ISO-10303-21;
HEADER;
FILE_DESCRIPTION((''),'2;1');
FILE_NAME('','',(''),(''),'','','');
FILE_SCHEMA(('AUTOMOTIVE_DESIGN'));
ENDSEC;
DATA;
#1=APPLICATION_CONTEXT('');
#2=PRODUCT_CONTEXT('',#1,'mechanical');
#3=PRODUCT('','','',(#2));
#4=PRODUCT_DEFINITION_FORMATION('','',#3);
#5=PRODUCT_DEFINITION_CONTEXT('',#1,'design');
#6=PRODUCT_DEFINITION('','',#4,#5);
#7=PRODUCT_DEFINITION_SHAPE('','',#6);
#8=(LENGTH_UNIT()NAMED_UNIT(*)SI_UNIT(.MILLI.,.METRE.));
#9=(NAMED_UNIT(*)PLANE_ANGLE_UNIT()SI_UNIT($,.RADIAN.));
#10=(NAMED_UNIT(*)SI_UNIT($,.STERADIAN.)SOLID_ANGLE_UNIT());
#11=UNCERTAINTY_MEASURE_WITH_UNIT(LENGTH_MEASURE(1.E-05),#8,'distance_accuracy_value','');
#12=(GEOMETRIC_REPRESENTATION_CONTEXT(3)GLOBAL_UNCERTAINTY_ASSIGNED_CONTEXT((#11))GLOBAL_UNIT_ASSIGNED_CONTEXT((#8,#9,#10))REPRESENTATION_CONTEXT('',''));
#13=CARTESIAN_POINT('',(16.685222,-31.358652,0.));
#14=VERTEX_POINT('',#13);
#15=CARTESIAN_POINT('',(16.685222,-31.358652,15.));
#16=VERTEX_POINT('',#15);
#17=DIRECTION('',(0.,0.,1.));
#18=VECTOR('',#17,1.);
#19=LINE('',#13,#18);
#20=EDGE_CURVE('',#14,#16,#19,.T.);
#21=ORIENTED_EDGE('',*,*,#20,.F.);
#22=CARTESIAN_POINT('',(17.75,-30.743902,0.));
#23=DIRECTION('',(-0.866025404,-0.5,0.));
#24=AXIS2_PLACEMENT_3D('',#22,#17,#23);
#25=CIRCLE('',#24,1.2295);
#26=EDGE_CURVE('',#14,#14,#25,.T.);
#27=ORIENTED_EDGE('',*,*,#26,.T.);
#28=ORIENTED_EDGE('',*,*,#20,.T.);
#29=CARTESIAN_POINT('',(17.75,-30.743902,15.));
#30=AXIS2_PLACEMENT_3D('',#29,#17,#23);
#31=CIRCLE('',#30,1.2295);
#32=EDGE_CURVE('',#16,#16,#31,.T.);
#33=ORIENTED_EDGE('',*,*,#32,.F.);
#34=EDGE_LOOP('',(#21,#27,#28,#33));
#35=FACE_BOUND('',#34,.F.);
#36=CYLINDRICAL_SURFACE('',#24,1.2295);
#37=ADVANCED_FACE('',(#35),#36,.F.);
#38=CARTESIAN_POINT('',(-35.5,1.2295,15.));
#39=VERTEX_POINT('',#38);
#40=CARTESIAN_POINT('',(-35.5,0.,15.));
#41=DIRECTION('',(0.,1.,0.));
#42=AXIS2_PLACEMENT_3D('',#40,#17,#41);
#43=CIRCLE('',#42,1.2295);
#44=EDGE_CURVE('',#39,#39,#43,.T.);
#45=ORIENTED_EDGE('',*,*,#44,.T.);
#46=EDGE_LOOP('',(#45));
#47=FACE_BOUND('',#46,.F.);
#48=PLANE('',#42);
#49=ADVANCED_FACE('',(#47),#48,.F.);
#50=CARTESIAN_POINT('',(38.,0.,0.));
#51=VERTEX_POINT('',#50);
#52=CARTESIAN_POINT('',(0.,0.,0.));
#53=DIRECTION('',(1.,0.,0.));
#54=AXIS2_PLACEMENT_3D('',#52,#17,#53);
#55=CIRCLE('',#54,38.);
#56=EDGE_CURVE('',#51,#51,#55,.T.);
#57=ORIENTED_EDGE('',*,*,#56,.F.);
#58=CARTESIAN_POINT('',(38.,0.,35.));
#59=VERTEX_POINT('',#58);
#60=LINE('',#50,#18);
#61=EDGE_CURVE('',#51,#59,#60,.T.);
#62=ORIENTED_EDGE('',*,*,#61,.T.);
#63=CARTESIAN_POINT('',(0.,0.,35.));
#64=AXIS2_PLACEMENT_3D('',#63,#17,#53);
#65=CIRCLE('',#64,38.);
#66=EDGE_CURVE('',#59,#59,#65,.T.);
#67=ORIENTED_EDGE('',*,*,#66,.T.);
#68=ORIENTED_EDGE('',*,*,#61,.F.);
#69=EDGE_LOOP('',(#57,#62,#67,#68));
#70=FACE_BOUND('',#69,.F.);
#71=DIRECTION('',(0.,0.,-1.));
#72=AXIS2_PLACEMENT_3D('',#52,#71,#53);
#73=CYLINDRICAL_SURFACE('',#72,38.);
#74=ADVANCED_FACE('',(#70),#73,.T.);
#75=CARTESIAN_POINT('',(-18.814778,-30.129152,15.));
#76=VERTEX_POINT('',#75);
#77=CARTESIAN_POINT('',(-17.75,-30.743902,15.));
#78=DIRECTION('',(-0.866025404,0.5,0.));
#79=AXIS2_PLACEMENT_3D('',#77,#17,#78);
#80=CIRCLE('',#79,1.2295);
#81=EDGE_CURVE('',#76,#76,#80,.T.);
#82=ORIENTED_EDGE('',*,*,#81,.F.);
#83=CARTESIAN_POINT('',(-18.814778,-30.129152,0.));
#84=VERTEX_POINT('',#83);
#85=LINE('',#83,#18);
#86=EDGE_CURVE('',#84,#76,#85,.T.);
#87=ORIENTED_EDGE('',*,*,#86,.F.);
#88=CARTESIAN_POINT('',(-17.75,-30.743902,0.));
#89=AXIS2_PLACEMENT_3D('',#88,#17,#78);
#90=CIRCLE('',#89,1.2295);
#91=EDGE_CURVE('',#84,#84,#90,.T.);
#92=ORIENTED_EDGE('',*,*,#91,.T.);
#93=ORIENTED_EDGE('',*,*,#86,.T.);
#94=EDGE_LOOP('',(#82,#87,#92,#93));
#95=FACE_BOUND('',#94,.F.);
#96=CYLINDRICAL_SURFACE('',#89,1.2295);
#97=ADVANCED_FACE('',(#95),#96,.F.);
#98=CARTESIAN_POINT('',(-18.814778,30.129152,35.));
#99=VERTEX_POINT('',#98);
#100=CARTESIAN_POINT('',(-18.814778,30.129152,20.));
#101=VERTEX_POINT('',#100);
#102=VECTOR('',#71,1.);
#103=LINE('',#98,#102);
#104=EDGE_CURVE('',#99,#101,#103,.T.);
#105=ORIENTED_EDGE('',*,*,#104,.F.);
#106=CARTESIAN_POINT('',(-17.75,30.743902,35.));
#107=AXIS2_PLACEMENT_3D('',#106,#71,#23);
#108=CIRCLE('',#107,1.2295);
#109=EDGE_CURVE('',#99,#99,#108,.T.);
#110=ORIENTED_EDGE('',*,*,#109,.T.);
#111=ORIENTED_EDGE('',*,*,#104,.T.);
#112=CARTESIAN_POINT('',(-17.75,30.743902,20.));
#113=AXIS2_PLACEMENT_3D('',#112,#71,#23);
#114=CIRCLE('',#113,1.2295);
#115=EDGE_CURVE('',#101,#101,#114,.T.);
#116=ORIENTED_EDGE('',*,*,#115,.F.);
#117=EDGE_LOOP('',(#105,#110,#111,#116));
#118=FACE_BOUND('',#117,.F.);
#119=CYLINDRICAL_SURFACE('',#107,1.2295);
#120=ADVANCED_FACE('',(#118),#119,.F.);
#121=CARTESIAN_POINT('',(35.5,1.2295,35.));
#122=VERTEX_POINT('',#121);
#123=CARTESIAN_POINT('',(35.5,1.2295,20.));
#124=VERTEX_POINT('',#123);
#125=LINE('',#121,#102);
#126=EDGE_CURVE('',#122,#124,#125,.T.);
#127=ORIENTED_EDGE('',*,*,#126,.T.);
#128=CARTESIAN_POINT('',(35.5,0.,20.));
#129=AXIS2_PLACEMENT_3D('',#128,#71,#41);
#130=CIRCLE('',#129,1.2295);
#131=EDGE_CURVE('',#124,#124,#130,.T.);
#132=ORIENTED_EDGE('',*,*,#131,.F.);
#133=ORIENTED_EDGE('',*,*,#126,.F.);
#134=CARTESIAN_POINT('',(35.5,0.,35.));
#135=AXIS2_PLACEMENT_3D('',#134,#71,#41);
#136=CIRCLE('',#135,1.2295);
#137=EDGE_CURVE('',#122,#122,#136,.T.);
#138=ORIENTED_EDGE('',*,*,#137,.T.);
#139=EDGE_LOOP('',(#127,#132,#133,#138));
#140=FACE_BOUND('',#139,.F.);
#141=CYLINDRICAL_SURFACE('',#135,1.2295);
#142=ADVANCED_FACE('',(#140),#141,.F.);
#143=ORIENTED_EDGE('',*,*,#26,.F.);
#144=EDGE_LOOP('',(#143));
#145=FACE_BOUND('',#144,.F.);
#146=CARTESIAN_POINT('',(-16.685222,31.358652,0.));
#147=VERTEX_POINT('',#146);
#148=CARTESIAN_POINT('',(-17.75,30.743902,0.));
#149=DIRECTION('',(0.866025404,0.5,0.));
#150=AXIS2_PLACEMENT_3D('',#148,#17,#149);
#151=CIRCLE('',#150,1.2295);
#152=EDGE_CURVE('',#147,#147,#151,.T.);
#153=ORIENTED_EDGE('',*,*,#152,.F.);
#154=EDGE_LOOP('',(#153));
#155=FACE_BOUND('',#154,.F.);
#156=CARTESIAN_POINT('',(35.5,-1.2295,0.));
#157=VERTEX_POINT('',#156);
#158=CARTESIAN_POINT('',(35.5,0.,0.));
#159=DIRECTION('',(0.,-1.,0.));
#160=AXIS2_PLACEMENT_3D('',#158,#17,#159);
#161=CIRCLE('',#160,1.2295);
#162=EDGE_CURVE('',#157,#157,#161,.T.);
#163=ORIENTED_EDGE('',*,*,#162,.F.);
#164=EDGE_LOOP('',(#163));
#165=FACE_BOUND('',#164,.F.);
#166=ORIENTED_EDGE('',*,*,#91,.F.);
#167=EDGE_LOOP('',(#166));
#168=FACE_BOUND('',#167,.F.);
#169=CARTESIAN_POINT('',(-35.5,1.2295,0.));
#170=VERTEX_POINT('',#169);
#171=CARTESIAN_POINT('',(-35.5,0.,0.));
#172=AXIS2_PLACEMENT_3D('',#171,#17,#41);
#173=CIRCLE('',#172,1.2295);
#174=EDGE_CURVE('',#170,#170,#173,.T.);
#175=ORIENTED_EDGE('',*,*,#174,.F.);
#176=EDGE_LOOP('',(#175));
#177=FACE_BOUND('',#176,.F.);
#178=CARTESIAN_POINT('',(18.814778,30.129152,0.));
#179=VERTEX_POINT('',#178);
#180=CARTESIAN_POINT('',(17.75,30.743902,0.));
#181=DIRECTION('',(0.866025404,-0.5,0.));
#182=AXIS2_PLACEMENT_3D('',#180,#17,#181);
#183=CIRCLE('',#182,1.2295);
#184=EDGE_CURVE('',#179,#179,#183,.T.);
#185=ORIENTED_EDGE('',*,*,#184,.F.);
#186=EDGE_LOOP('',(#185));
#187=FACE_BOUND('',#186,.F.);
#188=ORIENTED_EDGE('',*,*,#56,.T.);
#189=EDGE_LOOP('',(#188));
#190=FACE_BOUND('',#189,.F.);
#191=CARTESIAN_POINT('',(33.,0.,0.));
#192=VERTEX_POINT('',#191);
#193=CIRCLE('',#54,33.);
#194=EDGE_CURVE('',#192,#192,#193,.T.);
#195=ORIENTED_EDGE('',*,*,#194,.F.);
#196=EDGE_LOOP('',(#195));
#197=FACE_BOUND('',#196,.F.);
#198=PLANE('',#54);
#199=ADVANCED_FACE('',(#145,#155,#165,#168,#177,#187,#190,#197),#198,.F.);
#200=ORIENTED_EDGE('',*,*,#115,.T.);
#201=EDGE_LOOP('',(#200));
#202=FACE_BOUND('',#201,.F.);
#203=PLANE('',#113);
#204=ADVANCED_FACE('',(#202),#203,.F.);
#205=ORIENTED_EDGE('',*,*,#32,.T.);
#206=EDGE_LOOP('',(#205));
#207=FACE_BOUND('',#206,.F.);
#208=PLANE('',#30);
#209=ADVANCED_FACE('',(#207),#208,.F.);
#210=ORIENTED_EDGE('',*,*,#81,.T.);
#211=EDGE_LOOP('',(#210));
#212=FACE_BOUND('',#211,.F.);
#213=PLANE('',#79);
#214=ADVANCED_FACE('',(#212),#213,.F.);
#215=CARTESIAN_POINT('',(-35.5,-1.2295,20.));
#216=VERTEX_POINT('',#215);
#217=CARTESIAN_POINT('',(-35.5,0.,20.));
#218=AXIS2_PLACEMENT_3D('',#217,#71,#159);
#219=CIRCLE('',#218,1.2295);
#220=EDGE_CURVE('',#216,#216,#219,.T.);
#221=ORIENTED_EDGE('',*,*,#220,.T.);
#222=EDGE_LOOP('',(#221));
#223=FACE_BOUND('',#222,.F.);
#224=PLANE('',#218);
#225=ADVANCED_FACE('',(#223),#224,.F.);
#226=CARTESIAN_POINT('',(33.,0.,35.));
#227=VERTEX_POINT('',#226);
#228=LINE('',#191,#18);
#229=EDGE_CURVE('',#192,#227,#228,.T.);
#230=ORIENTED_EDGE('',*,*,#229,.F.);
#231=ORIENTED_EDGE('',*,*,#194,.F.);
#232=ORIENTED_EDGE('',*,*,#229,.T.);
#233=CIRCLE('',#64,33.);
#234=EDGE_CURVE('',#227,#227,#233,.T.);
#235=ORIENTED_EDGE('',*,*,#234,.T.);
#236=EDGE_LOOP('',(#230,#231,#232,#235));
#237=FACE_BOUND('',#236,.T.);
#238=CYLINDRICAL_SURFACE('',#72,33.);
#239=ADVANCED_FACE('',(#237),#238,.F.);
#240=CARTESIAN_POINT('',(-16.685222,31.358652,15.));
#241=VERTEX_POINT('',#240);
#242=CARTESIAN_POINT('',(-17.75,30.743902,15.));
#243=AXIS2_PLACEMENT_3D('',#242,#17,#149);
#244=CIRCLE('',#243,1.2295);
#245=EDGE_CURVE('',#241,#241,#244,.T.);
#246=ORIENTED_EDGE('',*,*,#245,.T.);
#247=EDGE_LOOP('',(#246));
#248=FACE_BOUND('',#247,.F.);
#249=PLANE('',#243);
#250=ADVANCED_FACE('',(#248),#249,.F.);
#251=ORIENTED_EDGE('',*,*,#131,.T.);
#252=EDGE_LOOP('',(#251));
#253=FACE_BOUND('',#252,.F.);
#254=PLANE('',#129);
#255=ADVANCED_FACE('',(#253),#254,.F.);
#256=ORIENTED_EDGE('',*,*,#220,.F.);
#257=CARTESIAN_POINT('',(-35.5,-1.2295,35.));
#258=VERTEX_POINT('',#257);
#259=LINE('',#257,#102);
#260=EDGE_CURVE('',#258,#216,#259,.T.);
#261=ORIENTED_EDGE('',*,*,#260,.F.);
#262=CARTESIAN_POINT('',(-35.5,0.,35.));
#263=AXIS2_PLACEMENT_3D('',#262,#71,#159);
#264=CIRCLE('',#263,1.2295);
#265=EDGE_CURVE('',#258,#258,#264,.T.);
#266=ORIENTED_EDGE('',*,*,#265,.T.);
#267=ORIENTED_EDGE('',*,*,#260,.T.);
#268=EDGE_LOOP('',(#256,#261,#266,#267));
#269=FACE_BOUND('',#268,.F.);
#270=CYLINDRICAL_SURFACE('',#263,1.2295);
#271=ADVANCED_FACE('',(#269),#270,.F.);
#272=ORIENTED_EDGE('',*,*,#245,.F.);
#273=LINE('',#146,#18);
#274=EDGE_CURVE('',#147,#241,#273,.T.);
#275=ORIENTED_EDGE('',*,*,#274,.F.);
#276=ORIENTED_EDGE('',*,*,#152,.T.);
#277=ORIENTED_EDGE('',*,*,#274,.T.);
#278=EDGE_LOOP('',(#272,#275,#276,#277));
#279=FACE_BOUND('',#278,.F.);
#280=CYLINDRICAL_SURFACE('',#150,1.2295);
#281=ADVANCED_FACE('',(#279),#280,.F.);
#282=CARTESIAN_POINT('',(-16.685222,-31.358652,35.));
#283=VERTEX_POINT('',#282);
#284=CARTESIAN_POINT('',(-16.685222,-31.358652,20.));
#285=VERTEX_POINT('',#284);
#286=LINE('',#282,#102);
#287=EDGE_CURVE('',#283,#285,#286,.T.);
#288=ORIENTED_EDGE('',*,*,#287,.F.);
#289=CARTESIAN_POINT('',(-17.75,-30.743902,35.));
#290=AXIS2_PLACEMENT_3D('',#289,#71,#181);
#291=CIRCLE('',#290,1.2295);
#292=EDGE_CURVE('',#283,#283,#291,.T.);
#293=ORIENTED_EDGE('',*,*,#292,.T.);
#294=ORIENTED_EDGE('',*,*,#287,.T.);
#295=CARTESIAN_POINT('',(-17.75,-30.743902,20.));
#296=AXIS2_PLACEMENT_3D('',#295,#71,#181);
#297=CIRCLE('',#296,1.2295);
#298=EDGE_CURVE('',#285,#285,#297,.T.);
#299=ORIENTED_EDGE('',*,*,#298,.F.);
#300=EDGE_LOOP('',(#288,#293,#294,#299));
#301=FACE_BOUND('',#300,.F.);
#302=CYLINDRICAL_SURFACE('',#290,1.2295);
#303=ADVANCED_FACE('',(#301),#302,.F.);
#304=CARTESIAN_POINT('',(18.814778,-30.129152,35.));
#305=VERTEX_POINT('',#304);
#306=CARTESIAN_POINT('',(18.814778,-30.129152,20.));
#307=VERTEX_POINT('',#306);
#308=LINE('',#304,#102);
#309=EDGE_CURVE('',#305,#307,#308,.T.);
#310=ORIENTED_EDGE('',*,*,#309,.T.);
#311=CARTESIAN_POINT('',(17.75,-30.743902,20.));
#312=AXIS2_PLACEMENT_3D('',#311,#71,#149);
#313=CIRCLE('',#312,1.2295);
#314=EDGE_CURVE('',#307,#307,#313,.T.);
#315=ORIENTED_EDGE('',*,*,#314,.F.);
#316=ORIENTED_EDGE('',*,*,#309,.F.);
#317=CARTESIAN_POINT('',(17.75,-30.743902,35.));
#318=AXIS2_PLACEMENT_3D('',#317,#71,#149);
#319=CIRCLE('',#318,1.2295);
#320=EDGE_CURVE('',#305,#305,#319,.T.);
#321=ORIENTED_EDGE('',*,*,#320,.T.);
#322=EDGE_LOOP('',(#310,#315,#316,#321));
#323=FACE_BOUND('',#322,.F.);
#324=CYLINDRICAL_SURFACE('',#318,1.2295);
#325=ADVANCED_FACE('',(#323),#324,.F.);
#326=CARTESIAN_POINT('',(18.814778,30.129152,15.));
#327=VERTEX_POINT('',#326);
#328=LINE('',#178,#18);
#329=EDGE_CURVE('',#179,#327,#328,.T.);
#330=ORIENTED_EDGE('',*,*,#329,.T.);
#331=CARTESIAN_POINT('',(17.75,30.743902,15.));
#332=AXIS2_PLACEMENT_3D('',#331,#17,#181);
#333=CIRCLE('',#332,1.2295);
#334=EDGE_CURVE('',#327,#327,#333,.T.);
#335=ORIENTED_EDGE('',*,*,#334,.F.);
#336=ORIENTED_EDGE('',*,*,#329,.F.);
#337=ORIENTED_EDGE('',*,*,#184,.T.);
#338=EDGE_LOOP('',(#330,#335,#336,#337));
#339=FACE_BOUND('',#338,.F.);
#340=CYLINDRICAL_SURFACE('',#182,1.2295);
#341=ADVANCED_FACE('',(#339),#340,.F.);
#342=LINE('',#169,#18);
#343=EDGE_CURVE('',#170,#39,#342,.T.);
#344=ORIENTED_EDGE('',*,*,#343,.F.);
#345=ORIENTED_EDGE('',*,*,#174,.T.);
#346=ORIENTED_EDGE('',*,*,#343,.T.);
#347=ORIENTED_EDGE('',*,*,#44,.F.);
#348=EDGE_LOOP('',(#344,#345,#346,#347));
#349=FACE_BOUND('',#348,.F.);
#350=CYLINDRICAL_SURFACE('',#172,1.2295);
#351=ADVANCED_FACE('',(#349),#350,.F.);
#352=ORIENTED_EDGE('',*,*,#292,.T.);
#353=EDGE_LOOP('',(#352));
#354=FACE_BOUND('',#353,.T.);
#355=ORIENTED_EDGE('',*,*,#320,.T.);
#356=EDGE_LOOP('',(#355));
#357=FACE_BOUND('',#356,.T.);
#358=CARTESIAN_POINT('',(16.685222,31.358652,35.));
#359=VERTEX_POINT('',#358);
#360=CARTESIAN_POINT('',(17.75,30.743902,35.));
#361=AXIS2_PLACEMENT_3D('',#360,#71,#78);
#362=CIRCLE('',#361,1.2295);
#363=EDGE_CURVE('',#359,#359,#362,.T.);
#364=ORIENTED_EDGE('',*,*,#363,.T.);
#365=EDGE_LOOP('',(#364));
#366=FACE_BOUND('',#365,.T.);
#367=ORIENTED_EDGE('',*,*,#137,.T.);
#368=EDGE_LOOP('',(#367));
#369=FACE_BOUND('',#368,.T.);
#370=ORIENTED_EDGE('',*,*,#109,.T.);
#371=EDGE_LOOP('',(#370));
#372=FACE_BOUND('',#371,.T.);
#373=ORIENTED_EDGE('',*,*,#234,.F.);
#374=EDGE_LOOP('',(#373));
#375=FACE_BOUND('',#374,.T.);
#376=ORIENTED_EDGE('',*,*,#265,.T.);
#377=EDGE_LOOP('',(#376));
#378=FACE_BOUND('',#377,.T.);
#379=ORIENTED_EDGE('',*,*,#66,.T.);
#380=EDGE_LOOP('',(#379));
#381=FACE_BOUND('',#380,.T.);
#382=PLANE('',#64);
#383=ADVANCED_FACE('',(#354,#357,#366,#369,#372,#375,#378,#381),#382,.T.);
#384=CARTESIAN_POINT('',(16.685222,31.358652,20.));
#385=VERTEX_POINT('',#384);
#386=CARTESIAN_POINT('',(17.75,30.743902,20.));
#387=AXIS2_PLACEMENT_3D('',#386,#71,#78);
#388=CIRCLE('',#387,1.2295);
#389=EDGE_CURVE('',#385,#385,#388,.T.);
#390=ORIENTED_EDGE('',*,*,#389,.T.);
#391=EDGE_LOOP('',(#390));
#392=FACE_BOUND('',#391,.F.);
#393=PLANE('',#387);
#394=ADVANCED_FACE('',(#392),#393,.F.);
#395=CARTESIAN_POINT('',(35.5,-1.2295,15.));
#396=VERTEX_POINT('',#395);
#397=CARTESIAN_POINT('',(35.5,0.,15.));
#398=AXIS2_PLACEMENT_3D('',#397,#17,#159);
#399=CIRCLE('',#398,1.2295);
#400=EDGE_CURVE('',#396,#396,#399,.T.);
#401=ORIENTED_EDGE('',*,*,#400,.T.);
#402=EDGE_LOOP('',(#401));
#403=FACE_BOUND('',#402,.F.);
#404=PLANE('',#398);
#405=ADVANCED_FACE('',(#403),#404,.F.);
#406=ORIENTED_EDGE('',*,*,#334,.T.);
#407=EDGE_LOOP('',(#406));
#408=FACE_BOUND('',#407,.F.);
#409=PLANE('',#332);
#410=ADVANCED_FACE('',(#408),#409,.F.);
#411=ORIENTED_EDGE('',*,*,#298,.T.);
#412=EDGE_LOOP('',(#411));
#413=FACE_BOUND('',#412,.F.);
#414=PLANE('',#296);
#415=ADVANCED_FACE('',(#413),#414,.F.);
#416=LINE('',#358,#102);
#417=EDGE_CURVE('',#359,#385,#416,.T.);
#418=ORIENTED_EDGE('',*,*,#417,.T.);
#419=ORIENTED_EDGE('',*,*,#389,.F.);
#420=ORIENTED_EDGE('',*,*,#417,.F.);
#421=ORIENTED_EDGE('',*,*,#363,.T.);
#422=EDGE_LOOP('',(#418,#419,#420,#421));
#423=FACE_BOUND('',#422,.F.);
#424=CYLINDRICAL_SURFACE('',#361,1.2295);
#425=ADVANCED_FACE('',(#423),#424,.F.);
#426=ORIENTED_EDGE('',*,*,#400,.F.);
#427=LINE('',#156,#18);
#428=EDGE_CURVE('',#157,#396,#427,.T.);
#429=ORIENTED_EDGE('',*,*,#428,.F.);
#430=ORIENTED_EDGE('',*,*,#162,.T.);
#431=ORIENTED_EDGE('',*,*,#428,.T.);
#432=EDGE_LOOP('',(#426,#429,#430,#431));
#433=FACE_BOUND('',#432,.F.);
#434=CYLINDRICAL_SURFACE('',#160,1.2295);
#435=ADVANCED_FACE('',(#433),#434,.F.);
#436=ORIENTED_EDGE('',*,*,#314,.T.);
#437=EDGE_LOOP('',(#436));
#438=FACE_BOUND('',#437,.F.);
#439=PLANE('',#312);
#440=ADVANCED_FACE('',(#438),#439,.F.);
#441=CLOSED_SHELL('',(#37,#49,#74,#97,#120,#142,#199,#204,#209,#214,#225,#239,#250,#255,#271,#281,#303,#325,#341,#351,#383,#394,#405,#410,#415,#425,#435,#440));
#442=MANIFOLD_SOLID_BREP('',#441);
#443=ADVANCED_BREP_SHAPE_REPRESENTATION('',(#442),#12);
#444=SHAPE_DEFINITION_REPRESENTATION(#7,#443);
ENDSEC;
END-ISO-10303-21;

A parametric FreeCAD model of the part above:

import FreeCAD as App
import Part
import Sketcher
from FreeCAD import Vector

doc = App.newDocument("Part")
body = doc.addObject("PartDesign::Body", "Body")

# Sketch on XY plane
sketch1 = body.newObject("Sketcher::SketchObject", "Sketch")
sketch1.AttachmentSupport = (doc.getObject("XY_Plane"), [""])
sketch1.MapMode = "FlatFace"
sketch1.addGeometry([
    Part.Circle(Vector(0, 0, 0), Vector(0, 0, 1), 38),
    Part.Circle(Vector(0, 0, 0), Vector(0, 0, 1), 33),
], False)
sketch1.addConstraint([
    Sketcher.Constraint("Coincident", 0, 3, -1, 1),
    Sketcher.Constraint("Coincident", 1, 3, -1, 1),
    Sketcher.Constraint("Diameter", 0, 76.0),
    Sketcher.Constraint("Diameter", 1, 66.0),
])
pad1 = body.newObject("PartDesign::Pad", "Pad")
pad1.Profile = sketch1
pad1.Length = 35

# Sketch on XY plane
sketch2 = body.newObject("Sketcher::SketchObject", "Sketch001")
sketch2.AttachmentSupport = (doc.getObject("XY_Plane"), [""])
sketch2.MapMode = "FlatFace"
sketch2.addGeometry(Part.Circle(Vector(-35.5, 0, 0), Vector(0, 0, 1), 1.2), False)
sketch2.addConstraint([
    Sketcher.Constraint("PointOnObject", 0, 3, -1),
    Sketcher.Constraint("Diameter", 0, 2.459),
    Sketcher.Constraint("DistanceX", 0, 3, -1, 1, 35.5),
])
doc.recompute()
hole = body.newObject("PartDesign::Hole", "Hole")
hole.Profile = sketch2
hole.ThreadType = "None"
hole.Diameter = 2.459
hole.DepthType = "Dimension"
hole.Depth = 15
hole.DrillPoint = "Flat"
hole.Reversed = True

# Sketch on XY plane
sketch3 = body.newObject("Sketcher::SketchObject", "Sketch002")
sketch3.AttachmentSupport = (doc.getObject("XY_Plane"), [""])
sketch3.MapMode = "FlatFace"
sketch3.AttachmentOffset = App.Placement(Vector(0, 0, 35), App.Rotation())
sketch3.addGeometry(Part.Circle(Vector(-35.5, 0, 0), Vector(0, 0, 1), 1.2), False)
sketch3.addConstraint([
    Sketcher.Constraint("PointOnObject", 0, 3, -1),
    Sketcher.Constraint("Diameter", 0, 2.459),
    Sketcher.Constraint("DistanceX", 0, 3, -1, 1, 35.5),
])
doc.recompute()
hole2 = body.newObject("PartDesign::Hole", "Hole001")
hole2.Profile = sketch3
hole2.ThreadType = "None"
hole2.Diameter = 2.459
hole2.DepthType = "Dimension"
hole2.Depth = 15
hole2.DrillPoint = "Flat"
doc.recompute()

polarpattern = body.newObject("PartDesign::PolarPattern", "PolarPattern")
polarpattern.Originals = [hole, hole2]
polarpattern.Axis = (doc.getObject("Z_Axis"), [""])
polarpattern.Angle = 360
polarpattern.Occurrences = 6
body.Tip = polarpattern

doc.recompute()
